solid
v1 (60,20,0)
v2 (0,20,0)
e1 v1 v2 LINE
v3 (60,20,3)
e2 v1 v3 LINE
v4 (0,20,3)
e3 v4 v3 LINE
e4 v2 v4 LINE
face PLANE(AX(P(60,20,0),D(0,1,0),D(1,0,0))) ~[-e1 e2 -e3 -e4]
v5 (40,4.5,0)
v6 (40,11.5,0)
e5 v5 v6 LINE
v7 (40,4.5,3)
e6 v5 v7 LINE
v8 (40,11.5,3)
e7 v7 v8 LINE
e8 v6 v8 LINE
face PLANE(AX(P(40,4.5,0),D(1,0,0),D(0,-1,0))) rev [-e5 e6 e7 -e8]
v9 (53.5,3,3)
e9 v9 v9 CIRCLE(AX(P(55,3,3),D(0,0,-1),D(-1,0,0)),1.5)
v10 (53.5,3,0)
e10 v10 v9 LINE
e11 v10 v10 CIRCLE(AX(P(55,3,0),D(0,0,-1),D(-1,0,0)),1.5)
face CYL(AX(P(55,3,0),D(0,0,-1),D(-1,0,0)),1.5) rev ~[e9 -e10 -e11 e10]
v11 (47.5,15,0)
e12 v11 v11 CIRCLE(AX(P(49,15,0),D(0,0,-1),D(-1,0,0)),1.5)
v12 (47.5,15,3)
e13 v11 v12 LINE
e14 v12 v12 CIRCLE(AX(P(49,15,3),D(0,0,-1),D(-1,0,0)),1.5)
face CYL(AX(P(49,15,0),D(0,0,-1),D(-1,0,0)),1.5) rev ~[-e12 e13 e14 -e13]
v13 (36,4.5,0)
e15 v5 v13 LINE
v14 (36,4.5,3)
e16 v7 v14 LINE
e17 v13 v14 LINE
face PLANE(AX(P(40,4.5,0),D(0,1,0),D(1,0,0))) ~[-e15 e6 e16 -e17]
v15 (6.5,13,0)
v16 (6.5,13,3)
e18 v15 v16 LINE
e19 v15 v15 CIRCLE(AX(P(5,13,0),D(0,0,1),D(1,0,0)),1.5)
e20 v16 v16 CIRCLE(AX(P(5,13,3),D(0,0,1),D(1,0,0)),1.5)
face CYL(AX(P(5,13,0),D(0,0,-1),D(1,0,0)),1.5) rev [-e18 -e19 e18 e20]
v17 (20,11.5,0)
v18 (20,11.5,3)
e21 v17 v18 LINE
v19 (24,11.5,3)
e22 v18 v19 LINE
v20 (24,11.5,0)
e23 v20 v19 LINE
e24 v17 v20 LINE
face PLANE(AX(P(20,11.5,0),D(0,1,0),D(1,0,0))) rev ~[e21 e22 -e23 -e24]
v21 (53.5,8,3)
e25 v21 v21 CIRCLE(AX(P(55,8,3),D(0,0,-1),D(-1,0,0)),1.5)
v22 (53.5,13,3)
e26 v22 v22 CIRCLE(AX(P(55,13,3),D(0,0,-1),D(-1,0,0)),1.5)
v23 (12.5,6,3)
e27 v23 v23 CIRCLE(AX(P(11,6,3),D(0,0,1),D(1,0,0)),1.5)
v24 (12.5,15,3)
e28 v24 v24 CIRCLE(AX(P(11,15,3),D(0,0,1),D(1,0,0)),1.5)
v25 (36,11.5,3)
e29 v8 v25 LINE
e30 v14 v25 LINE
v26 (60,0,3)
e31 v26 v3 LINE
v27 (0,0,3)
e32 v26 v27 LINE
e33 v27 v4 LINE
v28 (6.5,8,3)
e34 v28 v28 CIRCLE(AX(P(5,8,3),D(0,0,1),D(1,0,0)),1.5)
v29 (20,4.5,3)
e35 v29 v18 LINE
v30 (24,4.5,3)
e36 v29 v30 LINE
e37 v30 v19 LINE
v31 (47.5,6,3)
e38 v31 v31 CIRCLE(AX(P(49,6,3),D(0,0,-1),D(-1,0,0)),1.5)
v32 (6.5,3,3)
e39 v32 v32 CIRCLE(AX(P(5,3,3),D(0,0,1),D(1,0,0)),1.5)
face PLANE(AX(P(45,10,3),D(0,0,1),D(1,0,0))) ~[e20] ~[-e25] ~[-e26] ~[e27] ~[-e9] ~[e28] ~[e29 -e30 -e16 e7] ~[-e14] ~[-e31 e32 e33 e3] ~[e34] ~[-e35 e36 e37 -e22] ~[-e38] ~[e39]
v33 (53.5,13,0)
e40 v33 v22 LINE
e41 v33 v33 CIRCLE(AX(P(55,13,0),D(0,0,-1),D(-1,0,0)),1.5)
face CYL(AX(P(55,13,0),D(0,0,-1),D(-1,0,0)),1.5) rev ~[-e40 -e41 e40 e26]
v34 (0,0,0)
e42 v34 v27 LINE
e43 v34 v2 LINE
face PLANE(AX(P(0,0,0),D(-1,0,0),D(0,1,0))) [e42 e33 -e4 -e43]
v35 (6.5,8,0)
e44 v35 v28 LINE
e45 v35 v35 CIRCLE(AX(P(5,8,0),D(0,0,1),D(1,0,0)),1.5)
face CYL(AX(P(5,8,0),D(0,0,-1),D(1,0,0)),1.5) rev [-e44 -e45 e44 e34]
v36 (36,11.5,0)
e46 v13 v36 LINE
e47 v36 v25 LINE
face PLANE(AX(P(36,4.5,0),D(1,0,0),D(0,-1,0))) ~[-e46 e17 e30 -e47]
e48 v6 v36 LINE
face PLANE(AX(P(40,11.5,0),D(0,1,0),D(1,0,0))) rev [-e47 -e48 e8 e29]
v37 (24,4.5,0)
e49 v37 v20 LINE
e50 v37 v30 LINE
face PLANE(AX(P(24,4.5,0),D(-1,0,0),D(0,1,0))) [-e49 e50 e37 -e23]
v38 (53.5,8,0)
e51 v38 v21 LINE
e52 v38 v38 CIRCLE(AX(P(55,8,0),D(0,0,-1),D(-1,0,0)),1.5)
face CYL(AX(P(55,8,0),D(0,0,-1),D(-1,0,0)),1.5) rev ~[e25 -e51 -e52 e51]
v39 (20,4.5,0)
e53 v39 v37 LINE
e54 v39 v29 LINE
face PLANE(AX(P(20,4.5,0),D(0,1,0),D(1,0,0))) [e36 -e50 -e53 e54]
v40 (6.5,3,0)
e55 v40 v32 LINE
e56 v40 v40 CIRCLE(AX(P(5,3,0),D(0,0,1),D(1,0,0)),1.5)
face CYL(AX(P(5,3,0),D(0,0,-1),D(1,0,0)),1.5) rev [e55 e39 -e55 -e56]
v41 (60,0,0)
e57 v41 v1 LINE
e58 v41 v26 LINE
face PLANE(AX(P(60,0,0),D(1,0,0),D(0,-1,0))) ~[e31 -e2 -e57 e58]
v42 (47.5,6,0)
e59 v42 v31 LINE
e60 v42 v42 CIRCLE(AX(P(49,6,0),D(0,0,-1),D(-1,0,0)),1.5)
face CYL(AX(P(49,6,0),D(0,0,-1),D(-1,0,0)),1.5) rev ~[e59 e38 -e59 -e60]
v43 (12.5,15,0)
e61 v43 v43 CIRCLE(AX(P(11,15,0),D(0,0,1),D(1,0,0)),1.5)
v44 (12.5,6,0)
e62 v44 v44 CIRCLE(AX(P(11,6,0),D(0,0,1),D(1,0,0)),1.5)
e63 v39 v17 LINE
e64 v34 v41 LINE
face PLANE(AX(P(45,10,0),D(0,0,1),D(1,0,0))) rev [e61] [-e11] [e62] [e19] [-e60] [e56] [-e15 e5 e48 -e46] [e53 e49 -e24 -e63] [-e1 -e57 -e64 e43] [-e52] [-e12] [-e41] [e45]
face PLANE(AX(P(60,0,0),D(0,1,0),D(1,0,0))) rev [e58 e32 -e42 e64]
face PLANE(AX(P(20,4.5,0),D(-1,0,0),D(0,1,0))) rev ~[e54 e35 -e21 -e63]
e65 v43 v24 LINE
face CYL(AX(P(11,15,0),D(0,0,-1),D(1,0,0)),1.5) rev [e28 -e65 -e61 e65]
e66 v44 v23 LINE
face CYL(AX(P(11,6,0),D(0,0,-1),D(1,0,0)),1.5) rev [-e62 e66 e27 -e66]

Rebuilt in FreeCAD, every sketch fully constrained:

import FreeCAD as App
import Part
import Sketcher
Q = App.Units.Quantity


def add_polygon(sketch, points):
    """Adds a closed chain of lines whose ends are joined by coincident constraints."""
    first, n = sketch.GeometryCount, len(points)
    for a, b in zip(points, points[1:] + points[:1]):
        sketch.addGeometry(Part.LineSegment(App.Vector(*a, 0), App.Vector(*b, 0)), False)
    for i in range(n):
        sketch.addConstraint(Sketcher.Constraint("Coincident", first + i, 2, first + (i + 1) % n, 1))

doc = App.newDocument("Part")
body = doc.addObject("PartDesign::Body", "Body")

# Sketch on XY plane
sketch1 = doc.addObject("Sketcher::SketchObject", "Sketch")
body.addObject(sketch1)
sketch1.AttachmentSupport = (doc.XY_Plane, [""])
sketch1.MapMode = "FlatFace"
add_polygon(sketch1, [(0, 20), (0, 0), (30, 0), (30, 20)])  # lines 0-3
sketch1.addGeometry(Part.Circle(App.Vector(5, 3, 0), App.Vector(0, 0, 1), 1.5), False)  # 4
sketch1.addGeometry(Part.Circle(App.Vector(5, 8, 0), App.Vector(0, 0, 1), 1.5), False)  # 5
sketch1.addGeometry(Part.Circle(App.Vector(11, 6, 0), App.Vector(0, 0, 1), 1.5), False)  # 6
add_polygon(sketch1, [(24, 4.5), (20, 4.5), (20, 11.5), (24, 11.5)])  # lines 7-10
sketch1.addGeometry(Part.Circle(App.Vector(5, 13, 0), App.Vector(0, 0, 1), 1.5), False)  # 11
sketch1.addGeometry(Part.Circle(App.Vector(11, 15, 0), App.Vector(0, 0, 1), 1.5), False)  # 12
sketch1.addConstraint([
    Sketcher.Constraint("Vertical", 0),
    Sketcher.Constraint("Horizontal", 1),
    Sketcher.Constraint("Vertical", 2),
    Sketcher.Constraint("Horizontal", 3),
    Sketcher.Constraint("Horizontal", 7),
    Sketcher.Constraint("Vertical", 8),
    Sketcher.Constraint("Horizontal", 9),
    Sketcher.Constraint("Vertical", 10),
    Sketcher.Constraint("Coincident", 0, 2, -1, 1),
    Sketcher.Constraint("Equal", 4, 5),
    Sketcher.Constraint("Equal", 5, 6),
    Sketcher.Constraint("Equal", 6, 11),
    Sketcher.Constraint("Equal", 11, 12),
    Sketcher.Constraint("Vertical", 4, 3, 5, 3),
    Sketcher.Constraint("Vertical", 5, 3, 11, 3),
    Sketcher.Constraint("Vertical", 6, 3, 12, 3),
    Sketcher.Constraint("Diameter", 4, Q("3 mm")),
    Sketcher.Constraint("DistanceX", 1, 1, 1, 2, Q("30 mm")),
    Sketcher.Constraint("DistanceX", 7, 2, 7, 1, Q("4 mm")),
    Sketcher.Constraint("DistanceY", 0, 2, 0, 1, Q("20 mm")),
    Sketcher.Constraint("DistanceY", 8, 1, 8, 2, Q("7 mm")),
    Sketcher.Constraint("DistanceX", -1, 1, 4, 3, Q("5 mm")),
    Sketcher.Constraint("DistanceY", -1, 1, 4, 3, Q("3 mm")),
    Sketcher.Constraint("DistanceY", -1, 1, 5, 3, Q("8 mm")),
    Sketcher.Constraint("DistanceX", -1, 1, 6, 3, Q("11 mm")),
    Sketcher.Constraint("DistanceY", -1, 1, 6, 3, Q("6 mm")),
    Sketcher.Constraint("DistanceY", -1, 1, 11, 3, Q("13 mm")),
    Sketcher.Constraint("DistanceY", -1, 1, 12, 3, Q("15 mm")),
    Sketcher.Constraint("DistanceX", -1, 1, 7, 2, Q("20 mm")),
    Sketcher.Constraint("DistanceY", -1, 1, 7, 2, Q("4.5 mm")),
])
pad1 = doc.addObject("PartDesign::Pad", "Pad")
body.addObject(pad1)
pad1.Profile = sketch1
pad1.Length = 3
doc.recompute()

datumplane = doc.addObject("PartDesign::Plane", "DatumPlane")
body.addObject(datumplane)
datumplane.AttachmentSupport = (doc.YZ_Plane, [""])
datumplane.MapMode = "FlatFace"
datumplane.AttachmentOffset = App.Placement(App.Vector(0, 0, 30), App.Rotation())
mirrored = doc.addObject("PartDesign::Mirrored", "Mirrored")
body.addObject(mirrored)
mirrored.Originals = [pad1]
mirrored.MirrorPlane = (datumplane, [""])
body.Tip = mirrored

doc.recompute()
